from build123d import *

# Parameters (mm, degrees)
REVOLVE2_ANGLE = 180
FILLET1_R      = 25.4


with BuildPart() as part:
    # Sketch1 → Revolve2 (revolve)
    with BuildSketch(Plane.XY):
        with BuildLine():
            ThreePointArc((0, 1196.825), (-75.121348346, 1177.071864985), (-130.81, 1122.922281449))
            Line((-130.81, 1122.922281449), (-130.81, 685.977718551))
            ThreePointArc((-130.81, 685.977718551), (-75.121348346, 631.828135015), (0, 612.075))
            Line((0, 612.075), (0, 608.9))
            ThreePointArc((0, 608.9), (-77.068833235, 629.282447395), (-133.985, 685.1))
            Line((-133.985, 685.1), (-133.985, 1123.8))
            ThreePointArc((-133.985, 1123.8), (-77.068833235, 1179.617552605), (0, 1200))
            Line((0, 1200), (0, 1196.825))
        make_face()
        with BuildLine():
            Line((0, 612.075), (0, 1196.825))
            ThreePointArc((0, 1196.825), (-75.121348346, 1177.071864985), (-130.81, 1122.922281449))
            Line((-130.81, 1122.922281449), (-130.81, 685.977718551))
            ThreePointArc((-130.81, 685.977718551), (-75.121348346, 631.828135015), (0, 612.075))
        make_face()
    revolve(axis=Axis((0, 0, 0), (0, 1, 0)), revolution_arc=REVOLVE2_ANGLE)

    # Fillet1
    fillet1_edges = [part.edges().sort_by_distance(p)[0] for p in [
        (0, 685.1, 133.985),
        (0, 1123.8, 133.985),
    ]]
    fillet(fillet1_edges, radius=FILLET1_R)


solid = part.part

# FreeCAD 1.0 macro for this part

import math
import FreeCAD as App
import Part
import Sketcher
from FreeCAD import Vector
Q = App.Units.Quantity


def edges_at(feature, points):
    """Names of the edges that pass closest to the given points."""
    edges = feature.Shape.Edges
    near = lambda p: min(range(len(edges)), key=lambda i: edges[i].distToShape(Part.Vertex(*p))[0])
    return sorted({f"Edge{near(p) + 1}" for p in points})

doc = App.newDocument("Part")
body = doc.addObject("PartDesign::Body", "Body")

sketch1 = doc.addObject("Sketcher::SketchObject", "Sketch")
body.addObject(sketch1)
sketch1.AttachmentSupport = (doc.XY_Plane, [""])
sketch1.MapMode = "FlatFace"
sketch1.addGeometry(Part.LineSegment(Vector(0, 609, 0), Vector(0, 1200, 0)), False)
sketch1.addGeometry(Part.ArcOfCircle(Part.Circle(Vector(0, 1044, 0), Vector(0, 0, 1), 156), math.radians(90), math.radians(149)), False)
sketch1.addGeometry(Part.LineSegment(Vector(-134, 1124, 0), Vector(-134, 685, 0)), False)
sketch1.addGeometry(Part.ArcOfCircle(Part.Circle(Vector(0, 765, 0), Vector(0, 0, 1), 156), math.radians(-149), math.radians(-90)), False)
sketch1.addConstraint(Sketcher.Constraint("Coincident", 0, 2, 1, 1))
sketch1.addConstraint(Sketcher.Constraint("Coincident", 1, 2, 2, 1))
sketch1.addConstraint(Sketcher.Constraint("Coincident", 2, 2, 3, 1))
sketch1.addConstraint(Sketcher.Constraint("Coincident", 3, 2, 0, 1))
sketch1.addConstraint(Sketcher.Constraint("Vertical", 0))
sketch1.addConstraint(Sketcher.Constraint("Vertical", 2))
sketch1.addConstraint(Sketcher.Constraint("Equal", 1, 3))
sketch1.addConstraint(Sketcher.Constraint("PointOnObject", 1, 3, -2))
sketch1.addConstraint(Sketcher.Constraint("PointOnObject", 3, 3, -2))
sketch1.addConstraint(Sketcher.Constraint("PointOnObject", 0, 2, -2))
sketch1.addConstraint(Sketcher.Constraint("DistanceY", 0, 1, 0, 2, Q("591.1 mm")))
sketch1.addConstraint(Sketcher.Constraint("DistanceY", 2, 2, 2, 1, Q("438.7 mm")))
sketch1.addConstraint(Sketcher.Constraint("DistanceY", -1, 1, 0, 2, Q("1200 mm")))
sketch1.addConstraint(Sketcher.Constraint("DistanceX", 1, 2, -1, 1, Q("133.985 mm")))
revolution = doc.addObject("PartDesign::Revolution", "Revolution")
body.addObject(revolution)
revolution.Profile = sketch1
revolution.ReferenceAxis = (sketch1, ["V_Axis"])
revolution.Angle = 180
doc.recompute()

fillet = doc.addObject("PartDesign::Fillet", "Fillet")
body.addObject(fillet)
fillet.Base = (revolution, edges_at(revolution, [(0, 685.1, 133.985), (0, 1123.8, 133.985)]))
fillet.Radius = 25.4

doc.recompute()
